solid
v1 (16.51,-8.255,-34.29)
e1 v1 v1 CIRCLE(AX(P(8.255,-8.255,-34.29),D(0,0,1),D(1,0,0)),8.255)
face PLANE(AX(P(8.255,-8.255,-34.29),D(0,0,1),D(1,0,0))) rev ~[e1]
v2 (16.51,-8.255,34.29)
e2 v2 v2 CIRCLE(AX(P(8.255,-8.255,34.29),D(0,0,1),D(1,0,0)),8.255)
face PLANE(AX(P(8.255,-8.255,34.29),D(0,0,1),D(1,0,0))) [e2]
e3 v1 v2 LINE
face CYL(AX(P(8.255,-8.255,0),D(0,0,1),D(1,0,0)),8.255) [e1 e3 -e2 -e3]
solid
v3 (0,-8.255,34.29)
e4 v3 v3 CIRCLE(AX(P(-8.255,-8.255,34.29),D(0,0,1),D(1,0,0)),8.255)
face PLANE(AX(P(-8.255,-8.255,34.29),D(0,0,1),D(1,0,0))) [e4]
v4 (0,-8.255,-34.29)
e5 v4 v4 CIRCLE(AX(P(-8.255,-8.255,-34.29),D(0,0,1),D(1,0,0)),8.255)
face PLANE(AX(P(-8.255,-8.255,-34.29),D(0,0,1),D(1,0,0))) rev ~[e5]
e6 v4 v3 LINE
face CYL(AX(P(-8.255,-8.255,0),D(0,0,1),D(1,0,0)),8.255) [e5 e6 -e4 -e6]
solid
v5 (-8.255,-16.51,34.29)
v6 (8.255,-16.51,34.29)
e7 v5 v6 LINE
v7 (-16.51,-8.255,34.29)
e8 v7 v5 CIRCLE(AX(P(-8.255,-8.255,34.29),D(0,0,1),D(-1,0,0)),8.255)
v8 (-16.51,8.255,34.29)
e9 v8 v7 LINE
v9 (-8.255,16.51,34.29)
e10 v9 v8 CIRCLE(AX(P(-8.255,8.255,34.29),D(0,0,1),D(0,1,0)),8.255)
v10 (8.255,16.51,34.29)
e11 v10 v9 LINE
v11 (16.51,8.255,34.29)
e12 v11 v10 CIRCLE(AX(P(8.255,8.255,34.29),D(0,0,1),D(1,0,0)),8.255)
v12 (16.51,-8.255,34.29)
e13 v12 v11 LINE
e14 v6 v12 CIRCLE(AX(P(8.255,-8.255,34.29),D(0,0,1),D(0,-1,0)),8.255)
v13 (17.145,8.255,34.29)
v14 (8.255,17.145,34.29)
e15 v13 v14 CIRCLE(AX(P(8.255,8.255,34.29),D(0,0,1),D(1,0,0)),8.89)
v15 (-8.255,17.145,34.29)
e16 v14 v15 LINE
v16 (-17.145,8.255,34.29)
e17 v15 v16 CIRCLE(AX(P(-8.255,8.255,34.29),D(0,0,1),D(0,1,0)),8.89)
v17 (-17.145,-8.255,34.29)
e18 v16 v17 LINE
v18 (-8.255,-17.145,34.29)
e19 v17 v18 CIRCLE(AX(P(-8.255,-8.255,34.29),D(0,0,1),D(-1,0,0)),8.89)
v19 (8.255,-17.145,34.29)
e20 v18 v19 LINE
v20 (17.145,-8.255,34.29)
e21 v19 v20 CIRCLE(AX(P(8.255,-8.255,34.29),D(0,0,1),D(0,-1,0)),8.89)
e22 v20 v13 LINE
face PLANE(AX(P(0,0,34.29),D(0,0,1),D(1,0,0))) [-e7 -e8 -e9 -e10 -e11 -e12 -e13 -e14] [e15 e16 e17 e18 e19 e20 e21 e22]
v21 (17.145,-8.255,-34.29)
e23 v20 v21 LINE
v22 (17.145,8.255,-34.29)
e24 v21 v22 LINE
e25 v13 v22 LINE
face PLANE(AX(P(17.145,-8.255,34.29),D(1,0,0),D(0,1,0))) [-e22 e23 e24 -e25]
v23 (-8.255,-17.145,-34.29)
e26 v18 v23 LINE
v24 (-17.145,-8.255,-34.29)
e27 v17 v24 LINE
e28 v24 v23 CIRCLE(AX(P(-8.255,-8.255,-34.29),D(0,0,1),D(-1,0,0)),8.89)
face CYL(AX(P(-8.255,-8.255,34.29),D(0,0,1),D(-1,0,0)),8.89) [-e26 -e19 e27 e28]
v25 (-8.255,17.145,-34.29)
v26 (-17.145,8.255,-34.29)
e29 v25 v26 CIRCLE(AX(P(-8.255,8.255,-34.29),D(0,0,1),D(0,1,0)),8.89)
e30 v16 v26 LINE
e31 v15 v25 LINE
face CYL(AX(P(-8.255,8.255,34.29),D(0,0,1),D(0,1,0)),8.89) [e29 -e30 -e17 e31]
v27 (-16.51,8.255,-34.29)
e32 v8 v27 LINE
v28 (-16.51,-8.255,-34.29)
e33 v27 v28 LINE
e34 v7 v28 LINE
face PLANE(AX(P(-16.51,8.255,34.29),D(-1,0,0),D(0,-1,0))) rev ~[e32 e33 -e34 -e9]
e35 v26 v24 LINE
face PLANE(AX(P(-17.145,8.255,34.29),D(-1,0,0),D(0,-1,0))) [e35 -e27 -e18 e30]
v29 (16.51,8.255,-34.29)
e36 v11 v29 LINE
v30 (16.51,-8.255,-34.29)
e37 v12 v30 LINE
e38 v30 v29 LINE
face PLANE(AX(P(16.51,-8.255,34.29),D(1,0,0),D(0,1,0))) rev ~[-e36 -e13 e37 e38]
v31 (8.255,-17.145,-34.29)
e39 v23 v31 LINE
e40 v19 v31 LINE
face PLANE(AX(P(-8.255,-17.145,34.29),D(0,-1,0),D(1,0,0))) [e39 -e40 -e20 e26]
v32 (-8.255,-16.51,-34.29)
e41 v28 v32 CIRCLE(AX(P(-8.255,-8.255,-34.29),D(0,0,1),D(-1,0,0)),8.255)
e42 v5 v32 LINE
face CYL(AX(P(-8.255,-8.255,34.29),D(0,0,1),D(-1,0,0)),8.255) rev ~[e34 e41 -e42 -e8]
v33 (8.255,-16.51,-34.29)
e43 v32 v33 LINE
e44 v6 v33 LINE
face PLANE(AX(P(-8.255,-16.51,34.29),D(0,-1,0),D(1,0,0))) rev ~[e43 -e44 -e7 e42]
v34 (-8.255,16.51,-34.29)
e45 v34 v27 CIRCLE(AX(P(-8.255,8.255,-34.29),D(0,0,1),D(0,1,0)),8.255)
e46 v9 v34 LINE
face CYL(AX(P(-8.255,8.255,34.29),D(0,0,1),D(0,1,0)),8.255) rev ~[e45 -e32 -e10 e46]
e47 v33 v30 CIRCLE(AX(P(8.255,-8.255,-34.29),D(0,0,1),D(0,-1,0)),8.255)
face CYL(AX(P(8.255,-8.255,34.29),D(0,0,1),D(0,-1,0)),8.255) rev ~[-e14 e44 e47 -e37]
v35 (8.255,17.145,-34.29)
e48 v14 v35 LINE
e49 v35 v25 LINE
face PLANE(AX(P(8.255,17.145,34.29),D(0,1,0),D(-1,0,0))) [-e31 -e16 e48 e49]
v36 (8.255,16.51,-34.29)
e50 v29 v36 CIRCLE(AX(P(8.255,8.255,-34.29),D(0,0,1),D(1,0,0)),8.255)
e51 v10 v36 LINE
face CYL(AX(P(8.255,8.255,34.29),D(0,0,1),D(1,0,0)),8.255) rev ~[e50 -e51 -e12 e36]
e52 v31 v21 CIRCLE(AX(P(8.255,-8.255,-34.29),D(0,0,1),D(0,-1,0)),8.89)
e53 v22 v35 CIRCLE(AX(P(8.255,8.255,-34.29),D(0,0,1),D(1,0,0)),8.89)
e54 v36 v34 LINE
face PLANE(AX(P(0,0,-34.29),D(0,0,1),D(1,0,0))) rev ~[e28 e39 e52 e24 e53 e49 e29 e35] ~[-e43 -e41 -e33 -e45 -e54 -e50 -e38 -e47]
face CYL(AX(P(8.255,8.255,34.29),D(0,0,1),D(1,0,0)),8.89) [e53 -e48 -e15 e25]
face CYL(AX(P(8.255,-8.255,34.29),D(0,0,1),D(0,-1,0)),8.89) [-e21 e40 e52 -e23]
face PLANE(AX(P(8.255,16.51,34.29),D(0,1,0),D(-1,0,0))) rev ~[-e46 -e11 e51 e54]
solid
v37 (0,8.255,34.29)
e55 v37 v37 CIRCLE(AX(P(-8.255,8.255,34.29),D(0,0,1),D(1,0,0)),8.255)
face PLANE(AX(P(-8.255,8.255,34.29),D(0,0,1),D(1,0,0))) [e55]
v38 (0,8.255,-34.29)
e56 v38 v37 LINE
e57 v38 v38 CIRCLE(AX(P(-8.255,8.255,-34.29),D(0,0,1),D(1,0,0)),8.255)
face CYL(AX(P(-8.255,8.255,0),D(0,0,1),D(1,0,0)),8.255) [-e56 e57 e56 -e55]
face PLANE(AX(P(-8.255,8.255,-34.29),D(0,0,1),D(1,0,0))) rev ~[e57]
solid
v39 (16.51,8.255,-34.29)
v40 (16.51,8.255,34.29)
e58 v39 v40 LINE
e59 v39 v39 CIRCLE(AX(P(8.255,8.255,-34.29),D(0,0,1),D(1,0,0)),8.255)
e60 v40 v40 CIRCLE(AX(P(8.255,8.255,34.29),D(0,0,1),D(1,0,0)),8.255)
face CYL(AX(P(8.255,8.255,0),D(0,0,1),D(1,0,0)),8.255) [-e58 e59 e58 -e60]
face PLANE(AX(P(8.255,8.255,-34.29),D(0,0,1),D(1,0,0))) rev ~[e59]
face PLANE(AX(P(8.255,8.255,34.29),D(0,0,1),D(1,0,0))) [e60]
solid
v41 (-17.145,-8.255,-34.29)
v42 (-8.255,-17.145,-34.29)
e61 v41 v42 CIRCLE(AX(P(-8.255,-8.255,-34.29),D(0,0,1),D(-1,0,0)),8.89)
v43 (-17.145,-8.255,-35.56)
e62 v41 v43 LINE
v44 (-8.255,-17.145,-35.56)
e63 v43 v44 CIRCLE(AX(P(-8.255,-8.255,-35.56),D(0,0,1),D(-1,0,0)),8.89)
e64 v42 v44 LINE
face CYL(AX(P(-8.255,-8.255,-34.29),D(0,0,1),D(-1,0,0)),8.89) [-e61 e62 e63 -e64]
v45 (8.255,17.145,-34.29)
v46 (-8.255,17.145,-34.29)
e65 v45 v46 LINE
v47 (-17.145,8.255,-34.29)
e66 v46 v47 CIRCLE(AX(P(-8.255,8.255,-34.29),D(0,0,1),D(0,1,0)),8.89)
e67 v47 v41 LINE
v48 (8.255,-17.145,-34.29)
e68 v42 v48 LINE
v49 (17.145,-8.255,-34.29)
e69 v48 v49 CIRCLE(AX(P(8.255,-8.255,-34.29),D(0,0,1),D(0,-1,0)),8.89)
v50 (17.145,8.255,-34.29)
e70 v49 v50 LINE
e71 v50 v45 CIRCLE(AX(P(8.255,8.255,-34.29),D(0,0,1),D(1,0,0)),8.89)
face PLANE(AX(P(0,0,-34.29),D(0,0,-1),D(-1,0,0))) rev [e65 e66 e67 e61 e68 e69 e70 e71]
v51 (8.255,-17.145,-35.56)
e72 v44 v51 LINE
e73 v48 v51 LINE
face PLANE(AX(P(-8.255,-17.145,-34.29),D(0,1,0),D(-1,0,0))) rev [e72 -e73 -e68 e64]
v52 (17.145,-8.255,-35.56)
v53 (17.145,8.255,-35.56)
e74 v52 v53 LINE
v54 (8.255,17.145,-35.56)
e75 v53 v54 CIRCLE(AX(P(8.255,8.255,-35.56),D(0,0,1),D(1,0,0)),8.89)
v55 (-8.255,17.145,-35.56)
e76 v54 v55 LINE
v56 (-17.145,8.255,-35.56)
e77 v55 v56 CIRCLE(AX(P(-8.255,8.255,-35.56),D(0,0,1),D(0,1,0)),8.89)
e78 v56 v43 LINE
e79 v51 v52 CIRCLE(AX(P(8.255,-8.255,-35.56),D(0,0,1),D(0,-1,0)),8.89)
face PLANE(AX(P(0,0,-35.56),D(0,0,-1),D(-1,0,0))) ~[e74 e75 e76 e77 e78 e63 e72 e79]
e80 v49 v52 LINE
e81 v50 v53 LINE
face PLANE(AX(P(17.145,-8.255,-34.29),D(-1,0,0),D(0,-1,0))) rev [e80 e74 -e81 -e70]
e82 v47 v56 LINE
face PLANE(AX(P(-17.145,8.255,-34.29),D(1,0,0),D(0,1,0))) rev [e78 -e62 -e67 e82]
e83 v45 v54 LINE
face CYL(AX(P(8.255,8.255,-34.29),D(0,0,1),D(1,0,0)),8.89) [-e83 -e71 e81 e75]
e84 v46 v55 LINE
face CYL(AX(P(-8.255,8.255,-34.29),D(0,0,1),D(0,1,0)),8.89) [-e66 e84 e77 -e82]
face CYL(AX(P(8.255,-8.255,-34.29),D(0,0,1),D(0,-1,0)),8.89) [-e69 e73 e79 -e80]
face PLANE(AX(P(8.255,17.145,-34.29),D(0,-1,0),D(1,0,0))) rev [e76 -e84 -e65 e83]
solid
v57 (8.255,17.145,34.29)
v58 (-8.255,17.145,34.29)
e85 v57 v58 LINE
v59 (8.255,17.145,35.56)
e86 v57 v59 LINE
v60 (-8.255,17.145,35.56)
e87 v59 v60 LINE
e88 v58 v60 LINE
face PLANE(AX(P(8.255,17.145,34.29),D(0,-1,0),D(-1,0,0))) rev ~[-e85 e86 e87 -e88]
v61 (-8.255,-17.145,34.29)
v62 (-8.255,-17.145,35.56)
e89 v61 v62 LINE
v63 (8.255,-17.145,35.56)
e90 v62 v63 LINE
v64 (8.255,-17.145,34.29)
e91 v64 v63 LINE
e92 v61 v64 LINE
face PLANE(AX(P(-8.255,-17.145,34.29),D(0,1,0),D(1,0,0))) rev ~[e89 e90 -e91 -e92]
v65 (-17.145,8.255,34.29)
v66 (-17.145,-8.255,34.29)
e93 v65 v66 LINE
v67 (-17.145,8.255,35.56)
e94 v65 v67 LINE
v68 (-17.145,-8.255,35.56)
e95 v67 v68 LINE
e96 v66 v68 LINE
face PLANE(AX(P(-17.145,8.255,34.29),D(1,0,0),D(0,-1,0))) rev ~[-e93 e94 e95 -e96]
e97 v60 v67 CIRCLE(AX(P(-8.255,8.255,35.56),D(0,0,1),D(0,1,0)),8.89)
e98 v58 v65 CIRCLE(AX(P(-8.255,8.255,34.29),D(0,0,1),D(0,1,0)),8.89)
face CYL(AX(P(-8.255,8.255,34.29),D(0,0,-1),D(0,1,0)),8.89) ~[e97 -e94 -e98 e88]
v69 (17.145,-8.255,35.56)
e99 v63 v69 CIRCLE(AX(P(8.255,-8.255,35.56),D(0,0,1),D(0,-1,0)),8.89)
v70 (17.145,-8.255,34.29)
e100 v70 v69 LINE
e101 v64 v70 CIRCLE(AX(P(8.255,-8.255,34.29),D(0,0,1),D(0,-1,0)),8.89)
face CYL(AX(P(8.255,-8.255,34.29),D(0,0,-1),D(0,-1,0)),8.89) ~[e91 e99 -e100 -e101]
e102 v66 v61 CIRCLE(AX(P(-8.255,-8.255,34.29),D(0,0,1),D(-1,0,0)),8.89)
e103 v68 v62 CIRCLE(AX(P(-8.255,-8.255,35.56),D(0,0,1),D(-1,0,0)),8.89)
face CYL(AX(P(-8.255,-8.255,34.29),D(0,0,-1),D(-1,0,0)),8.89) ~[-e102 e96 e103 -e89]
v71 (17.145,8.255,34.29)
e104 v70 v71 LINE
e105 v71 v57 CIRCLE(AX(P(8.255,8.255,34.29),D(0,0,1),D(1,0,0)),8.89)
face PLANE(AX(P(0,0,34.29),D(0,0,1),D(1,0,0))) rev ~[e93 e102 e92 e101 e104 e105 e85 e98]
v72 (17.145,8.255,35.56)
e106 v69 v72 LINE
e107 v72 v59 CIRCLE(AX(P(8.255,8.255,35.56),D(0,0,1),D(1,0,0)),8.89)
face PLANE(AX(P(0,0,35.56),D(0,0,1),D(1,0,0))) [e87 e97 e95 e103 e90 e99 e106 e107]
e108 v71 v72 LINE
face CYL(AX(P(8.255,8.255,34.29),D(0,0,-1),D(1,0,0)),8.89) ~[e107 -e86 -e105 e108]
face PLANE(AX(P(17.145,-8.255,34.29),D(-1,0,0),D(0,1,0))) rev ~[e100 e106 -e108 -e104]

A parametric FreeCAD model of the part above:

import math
import FreeCAD as App
import Part
import Sketcher
from FreeCAD import Vector
Q = App.Units.Quantity

doc = App.newDocument("Part")
body = doc.addObject("PartDesign::Body", "Body")

# Sketch on XY plane
sketch1 = doc.addObject("Sketcher::SketchObject", "Sketch")
body.addObject(sketch1)
sketch1.AttachmentSupport = (doc.XY_Plane, [""])
sketch1.MapMode = "FlatFace"
sketch1.addGeometry(Part.Circle(Vector(-8, -8, 0), Vector(0, 0, 1), 8), False)
sketch1.addConstraint([
    Sketcher.Constraint("Diameter", 0, Q("0.65 in")),
    Sketcher.Constraint("DistanceX", 0, 3, -1, 1, Q("0.325 in")),
    Sketcher.Constraint("DistanceY", 0, 3, -1, 1, Q("0.325 in")),
])
pad1 = doc.addObject("PartDesign::Pad", "Pad")
body.addObject(pad1)
pad1.Profile = sketch1
pad1.Length = Q("2.7 in")
pad1.Midplane = True
body2 = doc.addObject("PartDesign::Body", "Body001")

# Sketch on XY plane
sketch2 = doc.addObject("Sketcher::SketchObject", "Sketch001")
body2.addObject(sketch2)
sketch2.AttachmentSupport = (doc.getObject("XY_Plane001"), [""])
sketch2.MapMode = "FlatFace"
sketch2.addGeometry(Part.Circle(Vector(8, -8, 0), Vector(0, 0, 1), 8), False)
sketch2.addConstraint([
    Sketcher.Constraint("Diameter", 0, Q("0.65 in")),
    Sketcher.Constraint("DistanceX", -1, 1, 0, 3, Q("0.325 in")),
    Sketcher.Constraint("DistanceY", 0, 3, -1, 1, Q("0.325 in")),
])
pad2 = doc.addObject("PartDesign::Pad", "Pad001")
body2.addObject(pad2)
pad2.Profile = sketch2
pad2.Length = Q("2.7 in")
pad2.Midplane = True
body3 = doc.addObject("PartDesign::Body", "Body002")

# Sketch on XY plane
sketch3 = doc.addObject("Sketcher::SketchObject", "Sketch002")
body3.addObject(sketch3)
sketch3.AttachmentSupport = (doc.getObject("XY_Plane002"), [""])
sketch3.MapMode = "FlatFace"
sketch3.addGeometry(Part.Circle(Vector(8, 8, 0), Vector(0, 0, 1), 8), False)
sketch3.addConstraint([
    Sketcher.Constraint("Diameter", 0, Q("0.65 in")),
    Sketcher.Constraint("DistanceX", -1, 1, 0, 3, Q("0.325 in")),
    Sketcher.Constraint("DistanceY", -1, 1, 0, 3, Q("0.325 in")),
])
pad3 = doc.addObject("PartDesign::Pad", "Pad002")
body3.addObject(pad3)
pad3.Profile = sketch3
pad3.Length = Q("2.7 in")
pad3.Midplane = True
body4 = doc.addObject("PartDesign::Body", "Body003")

# Sketch on XY plane
sketch4 = doc.addObject("Sketcher::SketchObject", "Sketch003")
body4.addObject(sketch4)
sketch4.AttachmentSupport = (doc.getObject("XY_Plane003"), [""])
sketch4.MapMode = "FlatFace"
sketch4.addGeometry(Part.Circle(Vector(-8, 8, 0), Vector(0, 0, 1), 8), False)
sketch4.addConstraint([
    Sketcher.Constraint("Diameter", 0, Q("0.65 in")),
    Sketcher.Constraint("DistanceX", 0, 3, -1, 1, Q("0.325 in")),
    Sketcher.Constraint("DistanceY", -1, 1, 0, 3, Q("0.325 in")),
])
pad4 = doc.addObject("PartDesign::Pad", "Pad003")
body4.addObject(pad4)
pad4.Profile = sketch4
pad4.Length = Q("2.7 in")
pad4.Midplane = True
body5 = doc.addObject("PartDesign::Body", "Body004")

# Sketch on XY plane
sketch5 = doc.addObject("Sketcher::SketchObject", "Sketch004")
body5.addObject(sketch5)
sketch5.AttachmentSupport = (doc.getObject("XY_Plane004"), [""])
sketch5.MapMode = "FlatFace"
sketch5.AttachmentOffset = App.Placement(Vector(0, 0, 1.35 * 25.4), App.Rotation())
sketch5.addGeometry([
    Part.LineSegment(Vector(8, 17, 0), Vector(-8, 17, 0)),  # 0
    Part.ArcOfCircle(Part.Circle(Vector(-8, 8, 0), Vector(0, 0, 1), 9), math.radians(90), math.radians(180)),  # 1
    Part.LineSegment(Vector(-17, 8, 0), Vector(-17, -8, 0)),  # 2
    Part.ArcOfCircle(Part.Circle(Vector(-8, -8, 0), Vector(0, 0, 1), 9), math.radians(180), math.radians(270)),  # 3
    Part.LineSegment(Vector(-8, -17, 0), Vector(8, -17, 0)),  # 4
    Part.ArcOfCircle(Part.Circle(Vector(8, -8, 0), Vector(0, 0, 1), 9), math.radians(-90), math.radians(0)),  # 5
    Part.LineSegment(Vector(17, -8, 0), Vector(17, 8, 0)),  # 6
    Part.ArcOfCircle(Part.Circle(Vector(8, 8, 0), Vector(0, 0, 1), 9), math.radians(0), math.radians(90)),  # 7
    Part.LineSegment(Vector(-17, -8, 0), Vector(-17, 8, 0)),  # 8
    Part.ArcOfCircle(Part.Circle(Vector(-8, 8, 0), Vector(0, 0, 1), 8), math.radians(90), math.radians(180)),  # 9
    Part.LineSegment(Vector(-8, 17, 0), Vector(8, 17, 0)),  # 10
    Part.ArcOfCircle(Part.Circle(Vector(8, 8, 0), Vector(0, 0, 1), 8), math.radians(0), math.radians(90)),  # 11
    Part.LineSegment(Vector(17, 8, 0), Vector(17, -8, 0)),  # 12
    Part.ArcOfCircle(Part.Circle(Vector(8, -8, 0), Vector(0, 0, 1), 8), math.radians(-90), math.radians(0)),  # 13
    Part.LineSegment(Vector(8, -17, 0), Vector(-8, -17, 0)),  # 14
    Part.ArcOfCircle(Part.Circle(Vector(-8, -8, 0), Vector(0, 0, 1), 8), math.radians(180), math.radians(270)),  # 15
], False)
sketch5.addConstraint([
    Sketcher.Constraint("Tangent", 0, 2, 1, 1),
    Sketcher.Constraint("Tangent", 1, 2, 2, 1),
    Sketcher.Constraint("Tangent", 2, 2, 3, 1),
    Sketcher.Constraint("Tangent", 3, 2, 4, 1),
    Sketcher.Constraint("Tangent", 4, 2, 5, 1),
    Sketcher.Constraint("Tangent", 5, 2, 6, 1),
    Sketcher.Constraint("Tangent", 6, 2, 7, 1),
    Sketcher.Constraint("Tangent", 7, 2, 0, 1),
    Sketcher.Constraint("Tangent", 8, 2, 9, 2),
    Sketcher.Constraint("Tangent", 9, 1, 10, 1),
    Sketcher.Constraint("Tangent", 10, 2, 11, 2),
    Sketcher.Constraint("Tangent", 11, 1, 12, 1),
    Sketcher.Constraint("Tangent", 12, 2, 13, 2),
    Sketcher.Constraint("Tangent", 13, 1, 14, 1),
    Sketcher.Constraint("Tangent", 14, 2, 15, 2),
    Sketcher.Constraint("Tangent", 15, 1, 8, 1),
    Sketcher.Constraint("Horizontal", 0),
    Sketcher.Constraint("Vertical", 2),
    Sketcher.Constraint("Horizontal", 4),
    Sketcher.Constraint("Vertical", 6),
    Sketcher.Constraint("Vertical", 8),
    Sketcher.Constraint("Horizontal", 10),
    Sketcher.Constraint("Vertical", 12),
    Sketcher.Constraint("Horizontal", 14),
    Sketcher.Constraint("Coincident", 9, 3, 1, 3),
    Sketcher.Constraint("Coincident", 11, 3, 7, 3),
    Sketcher.Constraint("Coincident", 13, 3, 5, 3),
    Sketcher.Constraint("Equal", 1, 3),
    Sketcher.Constraint("Equal", 3, 5),
    Sketcher.Constraint("Equal", 5, 7),
    Sketcher.Constraint("Equal", 13, 15),
    Sketcher.Constraint("Symmetric", 1, 3, 5, 3, -1, 1),
    Sketcher.Constraint("Equal", 14, 2),
    Sketcher.Constraint("Radius", 1, Q("0.35 in")),
    Sketcher.Constraint("Radius", 9, Q("0.325 in")),
    Sketcher.Constraint("DistanceY", 3, 3, 0, 2, Q("1 in")),
])
pad5 = doc.addObject("PartDesign::Pad", "Pad004")
body5.addObject(pad5)
pad5.Profile = sketch5
pad5.Length = Q("2.7 in")
pad5.Reversed = True
body6 = doc.addObject("PartDesign::Body", "Body005")

# Sketch on XY plane
sketch6 = doc.addObject("Sketcher::SketchObject", "Sketch005")
body6.addObject(sketch6)
sketch6.AttachmentSupport = (doc.getObject("XY_Plane005"), [""])
sketch6.MapMode = "FlatFace"
sketch6.AttachmentOffset = App.Placement(Vector(0, 0, 1.35 * 25.4), App.Rotation())
sketch6.addGeometry([
    Part.LineSegment(Vector(8, 17, 0), Vector(-8, 17, 0)),  # 0
    Part.ArcOfCircle(Part.Circle(Vector(-8, 8, 0), Vector(0, 0, 1), 9), math.radians(90), math.radians(180)),  # 1
    Part.LineSegment(Vector(-17, 8, 0), Vector(-17, -8, 0)),  # 2
    Part.ArcOfCircle(Part.Circle(Vector(-8, -8, 0), Vector(0, 0, 1), 9), math.radians(180), math.radians(270)),  # 3
    Part.LineSegment(Vector(-8, -17, 0), Vector(8, -17, 0)),  # 4
    Part.ArcOfCircle(Part.Circle(Vector(8, -8, 0), Vector(0, 0, 1), 9), math.radians(-90), math.radians(0)),  # 5
    Part.LineSegment(Vector(17, -8, 0), Vector(17, 8, 0)),  # 6
    Part.ArcOfCircle(Part.Circle(Vector(8, 8, 0), Vector(0, 0, 1), 9), math.radians(0), math.radians(90)),  # 7
], False)
sketch6.addConstraint([
    Sketcher.Constraint("Tangent", 0, 2, 1, 1),
    Sketcher.Constraint("Tangent", 1, 2, 2, 1),
    Sketcher.Constraint("Tangent", 2, 2, 3, 1),
    Sketcher.Constraint("Tangent", 3, 2, 4, 1),
    Sketcher.Constraint("Tangent", 4, 2, 5, 1),
    Sketcher.Constraint("Tangent", 5, 2, 6, 1),
    Sketcher.Constraint("Tangent", 6, 2, 7, 1),
    Sketcher.Constraint("Tangent", 7, 2, 0, 1),
    Sketcher.Constraint("Horizontal", 0),
    Sketcher.Constraint("Vertical", 2),
    Sketcher.Constraint("Horizontal", 4),
    Sketcher.Constraint("Vertical", 6),
    Sketcher.Constraint("Equal", 1, 3),
    Sketcher.Constraint("Equal", 3, 5),
    Sketcher.Constraint("Equal", 5, 7),
    Sketcher.Constraint("Symmetric", 1, 3, 5, 3, -1, 1),
    Sketcher.Constraint("Equal", 4, 2),
    Sketcher.Constraint("Radius", 1, Q("0.35 in")),
    Sketcher.Constraint("DistanceY", 3, 3, 0, 2, Q("1 in")),
])
pad6 = doc.addObject("PartDesign::Pad", "Pad005")
body6.addObject(pad6)
pad6.Profile = sketch6
pad6.Length = Q("0.05 in")
body7 = doc.addObject("PartDesign::Body", "Body006")
doc.recompute()

mirroring = doc.addObject("Part::Mirroring", "Mirroring")
mirroring.Source = body6
mirroring.Base = Vector(0, 0, 0)
mirroring.Normal = Vector(0, 0, 1)
body7.BaseFeature = mirroring
doc.recompute()
mirroring.Visibility = False

doc.recompute()
